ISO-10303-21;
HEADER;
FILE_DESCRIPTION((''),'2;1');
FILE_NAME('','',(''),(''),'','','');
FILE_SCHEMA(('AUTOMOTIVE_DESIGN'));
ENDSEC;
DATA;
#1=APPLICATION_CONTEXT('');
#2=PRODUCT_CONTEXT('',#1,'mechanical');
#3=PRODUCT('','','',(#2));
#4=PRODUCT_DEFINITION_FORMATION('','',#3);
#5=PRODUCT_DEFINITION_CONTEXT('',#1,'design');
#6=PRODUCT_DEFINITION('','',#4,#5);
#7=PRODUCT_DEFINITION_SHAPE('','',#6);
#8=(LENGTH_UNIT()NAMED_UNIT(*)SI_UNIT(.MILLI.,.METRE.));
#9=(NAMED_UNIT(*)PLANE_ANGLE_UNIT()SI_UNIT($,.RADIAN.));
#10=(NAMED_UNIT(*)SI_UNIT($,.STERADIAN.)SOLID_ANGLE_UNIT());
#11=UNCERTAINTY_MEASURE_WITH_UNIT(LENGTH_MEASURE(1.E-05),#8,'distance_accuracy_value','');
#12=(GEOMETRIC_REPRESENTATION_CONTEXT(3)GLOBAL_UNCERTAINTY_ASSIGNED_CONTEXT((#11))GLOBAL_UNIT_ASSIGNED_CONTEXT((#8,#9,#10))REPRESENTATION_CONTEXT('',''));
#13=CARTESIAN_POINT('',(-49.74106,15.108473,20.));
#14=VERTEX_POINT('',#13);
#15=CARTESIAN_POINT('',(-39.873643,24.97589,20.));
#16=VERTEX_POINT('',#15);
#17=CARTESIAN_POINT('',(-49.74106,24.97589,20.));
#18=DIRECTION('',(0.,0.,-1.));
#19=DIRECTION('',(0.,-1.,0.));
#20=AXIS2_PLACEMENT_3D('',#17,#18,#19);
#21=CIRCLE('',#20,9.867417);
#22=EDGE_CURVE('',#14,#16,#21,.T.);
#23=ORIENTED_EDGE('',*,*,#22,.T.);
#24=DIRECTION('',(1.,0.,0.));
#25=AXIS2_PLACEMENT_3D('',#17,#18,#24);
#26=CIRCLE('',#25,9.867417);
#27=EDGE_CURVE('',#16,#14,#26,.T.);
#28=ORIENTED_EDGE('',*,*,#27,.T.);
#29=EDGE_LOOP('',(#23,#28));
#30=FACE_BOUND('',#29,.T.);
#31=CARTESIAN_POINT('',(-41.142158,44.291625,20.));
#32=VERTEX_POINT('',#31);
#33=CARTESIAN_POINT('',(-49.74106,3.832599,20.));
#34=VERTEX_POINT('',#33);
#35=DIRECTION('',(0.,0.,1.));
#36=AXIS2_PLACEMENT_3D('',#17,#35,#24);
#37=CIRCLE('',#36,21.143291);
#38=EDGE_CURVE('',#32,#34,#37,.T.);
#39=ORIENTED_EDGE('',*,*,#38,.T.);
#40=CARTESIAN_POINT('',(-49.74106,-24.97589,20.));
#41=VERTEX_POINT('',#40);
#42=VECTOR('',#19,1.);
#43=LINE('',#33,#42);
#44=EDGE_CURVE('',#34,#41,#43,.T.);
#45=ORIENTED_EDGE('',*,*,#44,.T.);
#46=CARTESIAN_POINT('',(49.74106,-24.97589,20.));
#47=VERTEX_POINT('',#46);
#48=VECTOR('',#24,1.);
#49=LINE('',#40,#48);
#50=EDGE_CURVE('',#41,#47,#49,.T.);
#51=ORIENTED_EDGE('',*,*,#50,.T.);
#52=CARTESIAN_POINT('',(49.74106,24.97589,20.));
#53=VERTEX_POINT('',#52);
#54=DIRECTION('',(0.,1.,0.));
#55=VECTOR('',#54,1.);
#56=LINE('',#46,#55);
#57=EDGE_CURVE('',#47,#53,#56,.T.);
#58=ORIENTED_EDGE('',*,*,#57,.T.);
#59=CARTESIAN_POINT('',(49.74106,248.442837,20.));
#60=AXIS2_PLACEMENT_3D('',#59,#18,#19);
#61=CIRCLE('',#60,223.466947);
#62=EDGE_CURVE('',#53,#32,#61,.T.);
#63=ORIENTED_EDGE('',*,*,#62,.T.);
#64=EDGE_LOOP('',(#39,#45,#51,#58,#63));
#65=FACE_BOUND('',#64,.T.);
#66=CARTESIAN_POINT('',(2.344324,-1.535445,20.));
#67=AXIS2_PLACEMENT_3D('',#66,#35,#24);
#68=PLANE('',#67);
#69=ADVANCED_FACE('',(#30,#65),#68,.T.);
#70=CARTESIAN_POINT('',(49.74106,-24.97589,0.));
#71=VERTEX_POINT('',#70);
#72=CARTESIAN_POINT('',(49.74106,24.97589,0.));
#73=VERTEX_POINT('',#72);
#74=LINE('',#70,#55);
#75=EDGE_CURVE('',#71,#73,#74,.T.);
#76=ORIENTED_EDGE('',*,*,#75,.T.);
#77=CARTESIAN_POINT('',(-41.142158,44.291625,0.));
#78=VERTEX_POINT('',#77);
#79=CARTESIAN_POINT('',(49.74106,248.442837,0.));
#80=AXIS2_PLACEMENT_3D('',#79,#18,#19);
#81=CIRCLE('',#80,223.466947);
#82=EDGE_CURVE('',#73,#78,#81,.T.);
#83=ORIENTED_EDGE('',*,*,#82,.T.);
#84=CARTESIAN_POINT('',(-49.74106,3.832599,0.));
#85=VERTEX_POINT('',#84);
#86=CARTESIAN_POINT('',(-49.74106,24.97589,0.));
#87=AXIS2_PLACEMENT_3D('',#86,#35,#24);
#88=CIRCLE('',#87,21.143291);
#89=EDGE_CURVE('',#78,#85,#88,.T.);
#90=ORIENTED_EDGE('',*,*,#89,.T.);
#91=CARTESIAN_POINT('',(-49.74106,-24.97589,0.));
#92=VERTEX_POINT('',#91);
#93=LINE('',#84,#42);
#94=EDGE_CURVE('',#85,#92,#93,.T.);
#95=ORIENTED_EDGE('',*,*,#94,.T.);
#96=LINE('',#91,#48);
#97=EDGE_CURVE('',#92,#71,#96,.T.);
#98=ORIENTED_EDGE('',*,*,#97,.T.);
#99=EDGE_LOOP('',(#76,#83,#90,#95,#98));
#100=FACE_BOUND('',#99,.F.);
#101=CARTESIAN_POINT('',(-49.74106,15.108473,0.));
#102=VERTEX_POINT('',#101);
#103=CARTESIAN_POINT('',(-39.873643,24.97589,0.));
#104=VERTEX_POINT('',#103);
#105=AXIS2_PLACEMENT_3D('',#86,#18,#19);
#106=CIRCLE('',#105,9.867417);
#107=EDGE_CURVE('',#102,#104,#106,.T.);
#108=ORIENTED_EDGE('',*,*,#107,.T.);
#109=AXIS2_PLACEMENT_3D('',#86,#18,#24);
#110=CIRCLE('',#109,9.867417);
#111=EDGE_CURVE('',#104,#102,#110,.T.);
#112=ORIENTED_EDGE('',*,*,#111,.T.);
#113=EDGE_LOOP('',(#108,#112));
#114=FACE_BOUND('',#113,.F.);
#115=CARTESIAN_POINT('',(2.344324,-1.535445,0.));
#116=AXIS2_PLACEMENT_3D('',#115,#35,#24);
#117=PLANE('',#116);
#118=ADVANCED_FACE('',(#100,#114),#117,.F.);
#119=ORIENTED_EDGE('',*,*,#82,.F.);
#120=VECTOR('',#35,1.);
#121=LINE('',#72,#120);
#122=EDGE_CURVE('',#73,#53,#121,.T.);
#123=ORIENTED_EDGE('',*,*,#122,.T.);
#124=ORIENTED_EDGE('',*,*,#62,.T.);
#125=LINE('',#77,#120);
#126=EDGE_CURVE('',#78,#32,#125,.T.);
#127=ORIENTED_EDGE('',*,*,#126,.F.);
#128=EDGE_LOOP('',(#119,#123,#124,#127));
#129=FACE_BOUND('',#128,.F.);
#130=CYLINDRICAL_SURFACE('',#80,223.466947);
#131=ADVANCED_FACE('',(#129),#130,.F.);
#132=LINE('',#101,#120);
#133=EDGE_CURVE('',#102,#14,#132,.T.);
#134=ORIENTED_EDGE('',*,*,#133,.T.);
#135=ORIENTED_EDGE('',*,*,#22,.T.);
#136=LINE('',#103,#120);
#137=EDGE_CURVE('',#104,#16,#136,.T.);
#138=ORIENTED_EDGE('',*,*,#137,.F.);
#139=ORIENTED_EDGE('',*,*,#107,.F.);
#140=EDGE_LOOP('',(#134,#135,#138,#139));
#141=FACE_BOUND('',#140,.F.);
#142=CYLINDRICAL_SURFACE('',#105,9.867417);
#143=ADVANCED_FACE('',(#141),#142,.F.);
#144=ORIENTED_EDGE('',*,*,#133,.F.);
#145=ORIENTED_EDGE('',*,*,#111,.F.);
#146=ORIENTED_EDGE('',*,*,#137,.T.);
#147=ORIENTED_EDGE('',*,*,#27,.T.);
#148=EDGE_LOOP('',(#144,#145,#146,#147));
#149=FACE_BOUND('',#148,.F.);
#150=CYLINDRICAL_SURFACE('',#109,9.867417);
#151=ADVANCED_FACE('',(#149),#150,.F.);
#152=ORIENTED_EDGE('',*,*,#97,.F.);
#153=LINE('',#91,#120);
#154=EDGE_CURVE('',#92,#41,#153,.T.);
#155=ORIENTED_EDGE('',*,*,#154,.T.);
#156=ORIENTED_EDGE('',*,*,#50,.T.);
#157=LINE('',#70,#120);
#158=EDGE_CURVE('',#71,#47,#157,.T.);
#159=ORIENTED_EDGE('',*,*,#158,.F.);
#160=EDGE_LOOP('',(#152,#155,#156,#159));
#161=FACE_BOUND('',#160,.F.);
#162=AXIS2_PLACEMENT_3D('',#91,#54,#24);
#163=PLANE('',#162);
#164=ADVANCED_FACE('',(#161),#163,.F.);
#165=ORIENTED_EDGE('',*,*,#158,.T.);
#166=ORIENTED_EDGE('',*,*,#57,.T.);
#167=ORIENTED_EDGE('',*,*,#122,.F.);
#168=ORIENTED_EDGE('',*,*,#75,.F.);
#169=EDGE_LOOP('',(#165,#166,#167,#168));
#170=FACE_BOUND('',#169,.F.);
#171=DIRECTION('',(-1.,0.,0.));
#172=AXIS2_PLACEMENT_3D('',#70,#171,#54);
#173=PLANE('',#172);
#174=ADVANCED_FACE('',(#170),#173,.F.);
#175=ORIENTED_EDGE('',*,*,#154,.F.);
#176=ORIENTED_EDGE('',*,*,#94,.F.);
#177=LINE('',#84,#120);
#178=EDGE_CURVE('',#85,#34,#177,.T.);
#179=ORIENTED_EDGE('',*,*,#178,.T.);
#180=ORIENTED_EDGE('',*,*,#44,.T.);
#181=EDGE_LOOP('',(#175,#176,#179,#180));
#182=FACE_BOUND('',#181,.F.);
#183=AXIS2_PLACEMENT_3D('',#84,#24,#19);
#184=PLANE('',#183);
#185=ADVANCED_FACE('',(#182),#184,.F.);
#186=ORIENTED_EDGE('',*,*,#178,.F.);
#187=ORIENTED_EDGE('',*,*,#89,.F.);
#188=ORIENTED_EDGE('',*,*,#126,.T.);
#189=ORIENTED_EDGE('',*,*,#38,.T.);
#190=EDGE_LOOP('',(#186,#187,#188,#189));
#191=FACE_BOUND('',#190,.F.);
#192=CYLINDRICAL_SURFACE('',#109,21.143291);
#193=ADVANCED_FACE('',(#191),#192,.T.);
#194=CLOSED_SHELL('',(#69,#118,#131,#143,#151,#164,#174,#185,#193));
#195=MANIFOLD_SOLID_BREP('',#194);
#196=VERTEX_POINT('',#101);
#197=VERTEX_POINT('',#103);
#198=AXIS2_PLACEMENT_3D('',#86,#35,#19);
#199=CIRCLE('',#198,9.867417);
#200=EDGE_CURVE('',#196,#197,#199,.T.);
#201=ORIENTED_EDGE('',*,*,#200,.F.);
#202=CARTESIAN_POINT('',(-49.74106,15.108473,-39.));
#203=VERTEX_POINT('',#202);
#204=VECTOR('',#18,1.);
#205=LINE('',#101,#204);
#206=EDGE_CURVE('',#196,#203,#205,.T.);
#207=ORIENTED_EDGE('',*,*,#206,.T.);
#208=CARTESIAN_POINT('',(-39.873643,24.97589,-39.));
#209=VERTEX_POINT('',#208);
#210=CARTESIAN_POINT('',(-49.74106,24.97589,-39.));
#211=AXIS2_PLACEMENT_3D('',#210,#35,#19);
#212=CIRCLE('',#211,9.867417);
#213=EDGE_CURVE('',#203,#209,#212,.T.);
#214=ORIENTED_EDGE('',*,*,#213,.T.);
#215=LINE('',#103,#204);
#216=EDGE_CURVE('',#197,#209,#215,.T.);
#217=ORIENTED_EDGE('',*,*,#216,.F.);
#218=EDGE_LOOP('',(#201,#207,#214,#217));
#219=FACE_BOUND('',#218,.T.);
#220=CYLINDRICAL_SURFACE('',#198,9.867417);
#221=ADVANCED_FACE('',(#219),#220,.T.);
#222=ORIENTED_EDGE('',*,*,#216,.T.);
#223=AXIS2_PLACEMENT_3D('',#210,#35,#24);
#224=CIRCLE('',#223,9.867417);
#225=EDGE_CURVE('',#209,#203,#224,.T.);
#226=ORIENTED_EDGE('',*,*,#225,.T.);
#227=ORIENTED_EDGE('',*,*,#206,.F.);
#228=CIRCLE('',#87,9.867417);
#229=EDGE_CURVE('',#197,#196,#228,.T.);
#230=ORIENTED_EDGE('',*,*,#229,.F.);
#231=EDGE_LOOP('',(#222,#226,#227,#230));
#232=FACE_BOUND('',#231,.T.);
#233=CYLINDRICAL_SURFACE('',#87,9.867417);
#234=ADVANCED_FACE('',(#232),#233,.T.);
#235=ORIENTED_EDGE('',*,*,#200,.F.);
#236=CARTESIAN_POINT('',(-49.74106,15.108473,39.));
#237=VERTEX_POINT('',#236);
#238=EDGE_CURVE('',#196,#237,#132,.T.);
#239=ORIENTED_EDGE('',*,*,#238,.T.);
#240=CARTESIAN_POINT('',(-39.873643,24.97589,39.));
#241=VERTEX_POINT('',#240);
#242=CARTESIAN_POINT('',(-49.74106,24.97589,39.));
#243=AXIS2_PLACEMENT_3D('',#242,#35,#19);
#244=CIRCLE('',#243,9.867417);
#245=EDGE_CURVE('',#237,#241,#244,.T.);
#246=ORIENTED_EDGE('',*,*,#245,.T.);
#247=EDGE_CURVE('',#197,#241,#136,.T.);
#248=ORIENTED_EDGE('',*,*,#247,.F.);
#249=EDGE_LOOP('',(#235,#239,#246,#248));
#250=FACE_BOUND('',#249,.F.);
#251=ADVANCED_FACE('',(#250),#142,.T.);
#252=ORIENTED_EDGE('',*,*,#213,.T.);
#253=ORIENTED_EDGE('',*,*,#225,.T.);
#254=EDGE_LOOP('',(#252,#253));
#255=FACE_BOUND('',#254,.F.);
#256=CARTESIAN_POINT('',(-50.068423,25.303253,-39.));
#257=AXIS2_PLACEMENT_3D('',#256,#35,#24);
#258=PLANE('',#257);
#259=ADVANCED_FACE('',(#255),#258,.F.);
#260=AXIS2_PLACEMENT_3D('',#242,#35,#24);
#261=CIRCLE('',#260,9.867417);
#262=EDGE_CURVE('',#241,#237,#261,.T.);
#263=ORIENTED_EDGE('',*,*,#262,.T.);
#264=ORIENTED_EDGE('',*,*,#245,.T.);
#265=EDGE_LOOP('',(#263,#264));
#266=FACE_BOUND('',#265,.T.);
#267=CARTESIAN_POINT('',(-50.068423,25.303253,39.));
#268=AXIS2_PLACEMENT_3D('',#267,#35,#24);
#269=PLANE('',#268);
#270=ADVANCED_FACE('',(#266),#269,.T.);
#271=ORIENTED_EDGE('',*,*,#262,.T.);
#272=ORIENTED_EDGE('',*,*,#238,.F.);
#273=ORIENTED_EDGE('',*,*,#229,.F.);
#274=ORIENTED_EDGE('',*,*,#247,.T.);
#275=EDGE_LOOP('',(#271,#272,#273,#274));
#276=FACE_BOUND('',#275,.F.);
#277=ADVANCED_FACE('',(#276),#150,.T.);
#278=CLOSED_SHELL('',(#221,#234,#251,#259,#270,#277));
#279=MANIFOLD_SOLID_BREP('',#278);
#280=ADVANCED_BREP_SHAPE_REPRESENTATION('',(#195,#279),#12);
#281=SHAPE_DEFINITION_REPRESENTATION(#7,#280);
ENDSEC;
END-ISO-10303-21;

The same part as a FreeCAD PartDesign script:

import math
import FreeCAD as App
import Part
import Sketcher

V = App.Vector
Q = App.Units.Quantity

doc = App.newDocument("Part")
params = doc.addObject("Spreadsheet::Sheet", "Params")
for row, (alias, value) in enumerate([
    ("pad1_length", "20 mm"),
    ("pad2_length", "78 mm"),
], start=1):
    params.set(f"A{row}", alias)
    params.set(f"B{row}", "=" + value)
    params.setAlias(f"B{row}", alias)

body = doc.addObject("PartDesign::Body", "Body")

# Sketch on XY plane
sketch1 = body.newObject("Sketcher::SketchObject", "Sketch")
sketch1.AttachmentSupport = (doc.getObject("XY_Plane"), [""])
sketch1.MapMode = "FlatFace"
sketch1.addGeometry([
    Part.ArcOfCircle(Part.Circle(V(-50, 25, 0), V(0, 0, 1), 21), math.radians(66), math.radians(270)),  # 0
    Part.LineSegment(V(-50, 4, 0), V(-50, -25, 0)),  # 1
    Part.LineSegment(V(-50, -25, 0), V(50, -25, 0)),  # 2
    Part.LineSegment(V(50, -25, 0), V(50, 25, 0)),  # 3
    Part.ArcOfCircle(Part.Circle(V(50, 248, 0), V(0, 0, 1), 223), math.radians(-114), math.radians(-90)),  # 4
    Part.ArcOfCircle(Part.Circle(V(-50, 25, 0), V(0, 0, 1), 10), math.radians(0), math.radians(270)),  # 5
    Part.ArcOfCircle(Part.Circle(V(-50, 25, 0), V(0, 0, 1), 10), math.radians(-90), math.radians(0)),  # 6
], False)
sketch1.addConstraint([
    Sketcher.Constraint("Coincident", 0, 2, 1, 1),
    Sketcher.Constraint("Coincident", 1, 2, 2, 1),
    Sketcher.Constraint("Coincident", 2, 2, 3, 1),
    Sketcher.Constraint("Coincident", 3, 2, 4, 2),
    Sketcher.Constraint("Tangent", 4, 1, 0, 1),
    Sketcher.Constraint("Tangent", 5, 1, 6, 2),
    Sketcher.Constraint("Coincident", 6, 1, 5, 2),
    Sketcher.Constraint("Vertical", 1),
    Sketcher.Constraint("Horizontal", 2),
    Sketcher.Constraint("Vertical", 3),
    Sketcher.Constraint("Coincident", 5, 3, 0, 3),
    Sketcher.Constraint("Symmetric", 1, 2, 3, 2, -1, 1),
    Sketcher.Constraint("Horizontal", 6, 3, 3, 2),
    Sketcher.Constraint("Horizontal", 3, 2, 5, 1),
    Sketcher.Constraint("Vertical", 6, 3, 0, 2),
    Sketcher.Constraint("Vertical", 4, 3, 2, 2),
    Sketcher.Constraint("Vertical", 1, 2, 6, 1),
    Sketcher.Constraint("Radius", 0, Q("21.143291 mm")),
    Sketcher.Constraint("Radius", 4, Q("223.466947 mm")),
    Sketcher.Constraint("Radius", 5, Q("9.867417 mm")),
    Sketcher.Constraint("DistanceY", 1, 2, 1, 1, Q("28.808489 mm")),
])
pad1 = body.newObject("PartDesign::Pad", "Pad")
pad1.Profile = sketch1
pad1.setExpression("Length", "Params.pad1_length")
body2 = doc.addObject("PartDesign::Body", "Body001")

# Sketch on XY plane
sketch2 = body2.newObject("Sketcher::SketchObject", "Sketch001")
sketch2.AttachmentSupport = (doc.getObject("XY_Plane001"), [""])
sketch2.MapMode = "FlatFace"
sketch2.addGeometry([
    Part.ArcOfCircle(Part.Circle(V(-50, 25, 0), V(0, 0, 1), 10), math.radians(0), math.radians(270)),
    Part.ArcOfCircle(Part.Circle(V(-50, 25, 0), V(0, 0, 1), 10), math.radians(-90), math.radians(0)),
], False)
sketch2.addConstraint([
    Sketcher.Constraint("Tangent", 0, 1, 1, 2),
    Sketcher.Constraint("Coincident", 1, 1, 0, 2),
    Sketcher.Constraint("Horizontal", 1, 3, 0, 1),
    Sketcher.Constraint("Vertical", 0, 3, 1, 1),
    Sketcher.Constraint("Radius", 0, Q("9.867417 mm")),
    Sketcher.Constraint("DistanceX", 0, 3, -1, 1, Q("49.74106 mm")),
    Sketcher.Constraint("DistanceY", -1, 1, 0, 3, Q("24.97589 mm")),
])
pad2 = body2.newObject("PartDesign::Pad", "Pad001")
pad2.Profile = sketch2
pad2.setExpression("Length", "Params.pad2_length")
pad2.Midplane = True

doc.recompute()
